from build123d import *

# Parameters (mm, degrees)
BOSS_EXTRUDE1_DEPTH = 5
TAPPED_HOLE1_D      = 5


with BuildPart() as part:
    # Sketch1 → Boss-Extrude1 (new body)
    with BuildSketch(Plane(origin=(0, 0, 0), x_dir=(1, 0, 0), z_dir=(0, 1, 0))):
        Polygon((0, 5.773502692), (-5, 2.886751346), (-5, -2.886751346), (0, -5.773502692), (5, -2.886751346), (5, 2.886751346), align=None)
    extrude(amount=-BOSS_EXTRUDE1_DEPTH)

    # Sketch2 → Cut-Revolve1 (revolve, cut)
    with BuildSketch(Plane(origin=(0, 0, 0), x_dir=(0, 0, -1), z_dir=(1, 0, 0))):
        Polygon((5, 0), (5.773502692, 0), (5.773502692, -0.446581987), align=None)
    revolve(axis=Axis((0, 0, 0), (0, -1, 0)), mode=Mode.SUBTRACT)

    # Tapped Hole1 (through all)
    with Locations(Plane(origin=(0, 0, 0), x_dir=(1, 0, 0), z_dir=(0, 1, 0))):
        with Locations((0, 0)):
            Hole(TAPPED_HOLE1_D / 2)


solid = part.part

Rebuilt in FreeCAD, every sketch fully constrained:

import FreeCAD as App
import Part
import Sketcher

V = App.Vector
Q = App.Units.Quantity


def add_polygon(sketch, points):
    """Adds a closed chain of lines whose ends are joined by coincident constraints."""
    first, n = sketch.GeometryCount, len(points)
    for a, b in zip(points, points[1:] + points[:1]):
        sketch.addGeometry(Part.LineSegment(App.Vector(*a, 0), App.Vector(*b, 0)), False)
    for i in range(n):
        sketch.addConstraint(Sketcher.Constraint("Coincident", first + i, 2, first + (i + 1) % n, 1))

doc = App.newDocument("Part")
body = doc.addObject("PartDesign::Body", "Body")

sketch1 = body.newObject("Sketcher::SketchObject", "Sketch")
sketch1.AttachmentSupport = (doc.getObject("XZ_Plane"), [""])
sketch1.MapMode = "FlatFace"
add_polygon(sketch1, [(0, -5.773503), (-5, -2.886751), (-5, 2.886751), (0, 5.773503), (5, 2.886751), (5, -2.886751)])
sketch1.addConstraint([
    Sketcher.Constraint("Vertical", 1),
    Sketcher.Constraint("Vertical", 4),
    Sketcher.Constraint("Symmetric", 0, 2, 3, 2, -1, 1),
    Sketcher.Constraint("Symmetric", 2, 2, 5, 2, -1, 1),
    Sketcher.Constraint("PointOnObject", 2, 2, -2),
    Sketcher.Constraint("Parallel", 2, 5),
    Sketcher.Constraint("Horizontal", 1, 2, 3, 2),
    Sketcher.Constraint("Angle", 0, Q("150 deg")),
    Sketcher.Constraint("DistanceX", 0, 2, -1, 1, Q("5 mm")),
    Sketcher.Constraint("DistanceY", 1, 1, 1, 2, Q("5.773503 mm")),
])
pad1 = body.newObject("PartDesign::Pad", "Pad")
pad1.Profile = sketch1
pad1.Length = 5

sketch2 = body.newObject("Sketcher::SketchObject", "Sketch001")
sketch2.AttachmentSupport = (doc.getObject("YZ_Plane"), [""])
sketch2.MapMode = "FlatFace"
add_polygon(sketch2, [(0, -5.773503), (0, -5), (-0.446582, -5.773503)])
sketch2.addConstraint([
    Sketcher.Constraint("Vertical", 0),
    Sketcher.Constraint("Horizontal", 2),
    Sketcher.Constraint("PointOnObject", 0, 2, -2),
    Sketcher.Constraint("Angle", 1, Q("-120 deg")),
    Sketcher.Constraint("DistanceY", 0, 2, -1, 1, Q("5 mm")),
    Sketcher.Constraint("DistanceX", 2, 1, 2, 2, Q("0.446582 mm")),
])
groove = body.newObject("PartDesign::Groove", "Groove")
groove.Profile = sketch2
groove.ReferenceAxis = (sketch2, ["H_Axis"])
groove.Angle = 360

sketch3 = body.newObject("Sketcher::SketchObject", "Sketch002")
sketch3.AttachmentSupport = (doc.getObject("XZ_Plane"), [""])
sketch3.MapMode = "FlatFace"
sketch3.addGeometry(Part.Circle(V(0, 0, 0), V(0, 0, 1), 2.5), False)
sketch3.addConstraint([
    Sketcher.Constraint("Coincident", 0, 3, -1, 1),
    Sketcher.Constraint("Diameter", 0, Q("5 mm")),
])
doc.recompute()
hole = body.newObject("PartDesign::Hole", "Hole")
hole.Profile = sketch3
hole.ThreadType = "None"
hole.Diameter = 5
hole.DepthType = "ThroughAll"
hole.Reversed = True

doc.recompute()
